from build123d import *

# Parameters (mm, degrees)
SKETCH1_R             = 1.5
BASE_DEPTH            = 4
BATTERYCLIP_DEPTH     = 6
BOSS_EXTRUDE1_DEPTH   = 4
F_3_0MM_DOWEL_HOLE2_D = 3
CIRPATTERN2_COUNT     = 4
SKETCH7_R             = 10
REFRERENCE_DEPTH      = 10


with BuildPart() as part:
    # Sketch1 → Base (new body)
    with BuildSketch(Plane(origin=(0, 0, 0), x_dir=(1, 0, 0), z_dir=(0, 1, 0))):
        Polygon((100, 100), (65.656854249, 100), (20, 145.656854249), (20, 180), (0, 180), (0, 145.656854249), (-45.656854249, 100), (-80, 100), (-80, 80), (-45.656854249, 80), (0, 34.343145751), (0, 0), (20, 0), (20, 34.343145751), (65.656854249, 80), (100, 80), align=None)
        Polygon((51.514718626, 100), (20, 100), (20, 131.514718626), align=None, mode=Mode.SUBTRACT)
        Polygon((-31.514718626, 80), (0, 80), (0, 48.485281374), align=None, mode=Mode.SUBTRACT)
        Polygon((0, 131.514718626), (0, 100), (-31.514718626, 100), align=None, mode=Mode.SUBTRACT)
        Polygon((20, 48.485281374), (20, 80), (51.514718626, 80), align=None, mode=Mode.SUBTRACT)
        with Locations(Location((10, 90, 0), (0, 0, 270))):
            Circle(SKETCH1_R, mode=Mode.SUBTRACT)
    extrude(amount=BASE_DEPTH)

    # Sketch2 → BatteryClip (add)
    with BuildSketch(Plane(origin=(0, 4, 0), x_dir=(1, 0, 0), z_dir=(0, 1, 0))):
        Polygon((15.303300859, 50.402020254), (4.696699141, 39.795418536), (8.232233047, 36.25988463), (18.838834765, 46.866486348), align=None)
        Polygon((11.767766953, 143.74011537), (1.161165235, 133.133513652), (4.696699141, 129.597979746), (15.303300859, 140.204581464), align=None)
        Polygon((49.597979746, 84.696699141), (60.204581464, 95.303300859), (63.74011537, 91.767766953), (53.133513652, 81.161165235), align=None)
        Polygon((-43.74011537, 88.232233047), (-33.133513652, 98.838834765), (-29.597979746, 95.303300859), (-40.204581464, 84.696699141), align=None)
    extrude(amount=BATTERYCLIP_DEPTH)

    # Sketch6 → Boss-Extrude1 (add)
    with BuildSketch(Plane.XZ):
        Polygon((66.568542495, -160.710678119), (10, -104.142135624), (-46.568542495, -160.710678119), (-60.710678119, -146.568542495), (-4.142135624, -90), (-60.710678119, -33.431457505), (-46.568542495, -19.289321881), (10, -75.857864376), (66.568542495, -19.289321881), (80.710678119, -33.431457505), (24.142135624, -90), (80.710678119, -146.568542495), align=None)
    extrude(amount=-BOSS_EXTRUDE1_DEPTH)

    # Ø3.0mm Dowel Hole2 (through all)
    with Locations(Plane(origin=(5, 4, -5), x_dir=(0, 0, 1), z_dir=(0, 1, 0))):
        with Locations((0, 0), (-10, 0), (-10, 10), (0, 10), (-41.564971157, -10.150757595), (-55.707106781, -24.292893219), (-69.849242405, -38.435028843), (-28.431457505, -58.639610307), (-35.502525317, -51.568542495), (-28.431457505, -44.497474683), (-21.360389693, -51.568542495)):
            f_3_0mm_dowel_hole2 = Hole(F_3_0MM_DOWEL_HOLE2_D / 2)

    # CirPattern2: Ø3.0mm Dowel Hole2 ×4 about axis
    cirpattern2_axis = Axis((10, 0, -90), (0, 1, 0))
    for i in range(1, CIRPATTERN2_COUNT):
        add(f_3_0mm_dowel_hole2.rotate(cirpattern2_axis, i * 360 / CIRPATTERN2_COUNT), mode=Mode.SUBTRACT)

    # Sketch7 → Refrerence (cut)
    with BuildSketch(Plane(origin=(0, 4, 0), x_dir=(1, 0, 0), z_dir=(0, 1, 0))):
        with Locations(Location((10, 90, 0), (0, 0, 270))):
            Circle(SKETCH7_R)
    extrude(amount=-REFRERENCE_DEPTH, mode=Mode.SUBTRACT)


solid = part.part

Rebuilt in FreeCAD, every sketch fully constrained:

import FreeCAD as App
import Part
import Sketcher
Q = App.Units.Quantity


def add_polygon(sketch, points):
    """Adds a closed chain of lines whose ends are joined by coincident constraints."""
    first, n = sketch.GeometryCount, len(points)
    for a, b in zip(points, points[1:] + points[:1]):
        sketch.addGeometry(Part.LineSegment(App.Vector(*a, 0), App.Vector(*b, 0)), False)
    for i in range(n):
        sketch.addConstraint(Sketcher.Constraint("Coincident", first + i, 2, first + (i + 1) % n, 1))

doc = App.newDocument("Part")
params = doc.addObject("Spreadsheet::Sheet", "Params")
for row, (alias, value) in enumerate([
    ("sketch1_diameter", "3 mm"),
    ("sketch1_width", "20 mm"),
    ("pad1_length", "4 mm"),
    ("sketch2_length", "15 mm"),
    ("sketch2_length2", "5 mm"),
    ("pad2_length", "6 mm"),
    ("sketch3_length", "80 mm"),
    ("sketch3_length2", "20 mm"),
    ("pad3_length", "4 mm"),
    ("sketch4_diameter", "3 mm"),
    ("hole_diameter", "3 mm"),
    ("sketch5_diameter", "20 mm"),
    ("pocket1_length", "10 mm"),
], start=1):
    params.set(f"A{row}", alias)
    params.set(f"B{row}", "=" + value)
    params.setAlias(f"B{row}", alias)

body = doc.addObject("PartDesign::Body", "Body")

# Sketch on XZ plane
sketch1 = body.newObject("Sketcher::SketchObject", "Sketch")
sketch1.AttachmentSupport = (doc.getObject("XZ_Plane"), [""])
sketch1.MapMode = "FlatFace"
add_polygon(sketch1, [(100, -100), (65.656854, -100), (20, -145.656854), (20, -180), (0, -180), (0, -145.656854), (-45.656854, -100), (-80, -100), (-80, -80), (-45.656854, -80), (0, -34.343146), (0, 0), (20, 0), (20, -34.343146), (65.656854, -80), (100, -80)])  # lines 0-15
add_polygon(sketch1, [(0, -48.485281), (-31.514719, -80), (0, -80)])  # lines 16-18
add_polygon(sketch1, [(51.514719, -80), (20, -48.485281), (20, -80)])  # lines 19-21
add_polygon(sketch1, [(-31.514719, -100), (0, -131.514719), (0, -100)])  # lines 22-24
sketch1.addGeometry(Part.Circle(App.Vector(10, -90, 0), App.Vector(0, 0, 1), 1.5), False)  # 25
add_polygon(sketch1, [(20, -131.514719), (51.514719, -100), (20, -100)])  # lines 26-28
sketch1.addConstraint(Sketcher.Constraint("Horizontal", 0))
sketch1.addConstraint(Sketcher.Constraint("Vertical", 2))
sketch1.addConstraint(Sketcher.Constraint("Horizontal", 3))
sketch1.addConstraint(Sketcher.Constraint("Vertical", 4))
sketch1.addConstraint(Sketcher.Constraint("Horizontal", 6))
sketch1.addConstraint(Sketcher.Constraint("Vertical", 7))
sketch1.addConstraint(Sketcher.Constraint("Horizontal", 8))
sketch1.addConstraint(Sketcher.Constraint("Vertical", 10))
sketch1.addConstraint(Sketcher.Constraint("Horizontal", 11))
sketch1.addConstraint(Sketcher.Constraint("Vertical", 12))
sketch1.addConstraint(Sketcher.Constraint("Horizontal", 14))
sketch1.addConstraint(Sketcher.Constraint("Vertical", 15))
sketch1.addConstraint(Sketcher.Constraint("Horizontal", 17))
sketch1.addConstraint(Sketcher.Constraint("Vertical", 18))
sketch1.addConstraint(Sketcher.Constraint("Vertical", 20))
sketch1.addConstraint(Sketcher.Constraint("Horizontal", 21))
sketch1.addConstraint(Sketcher.Constraint("Vertical", 23))
sketch1.addConstraint(Sketcher.Constraint("Horizontal", 24))
sketch1.addConstraint(Sketcher.Constraint("Horizontal", 27))
sketch1.addConstraint(Sketcher.Constraint("Vertical", 28))
sketch1.addConstraint(Sketcher.Constraint("Coincident", 10, 2, -1, 1))
sketch1.addConstraint(Sketcher.Constraint("PointOnObject", 3, 2, -2))
sketch1.addConstraint(Sketcher.Constraint("PointOnObject", 17, 2, -2))
sketch1.addConstraint(Sketcher.Constraint("PointOnObject", 22, 2, -2))
sketch1.addConstraint(Sketcher.Constraint("Perpendicular", 1, 5))
sketch1.addConstraint(Sketcher.Constraint("Perpendicular", 5, 9))
sketch1.addConstraint(Sketcher.Constraint("Perpendicular", 9, 13))
sketch1.addConstraint(Sketcher.Constraint("Perpendicular", 13, 16))
sketch1.addConstraint(Sketcher.Constraint("Perpendicular", 16, 19))
sketch1.addConstraint(Sketcher.Constraint("Parallel", 19, 22))
sketch1.addConstraint(Sketcher.Constraint("Perpendicular", 22, 26))
sketch1.addConstraint(Sketcher.Constraint("Horizontal", 1, 2, 4, 2))
sketch1.addConstraint(Sketcher.Constraint("Horizontal", 0, 2, 5, 2))
sketch1.addConstraint(Sketcher.Constraint("Horizontal", 9, 2, 12, 2))
sketch1.addConstraint(Sketcher.Constraint("Horizontal", 8, 2, 13, 2))
sketch1.addConstraint(Sketcher.Constraint("Horizontal", 14, 2, 16, 2))
sketch1.addConstraint(Sketcher.Constraint("Horizontal", 18, 2, 19, 2))
sketch1.addConstraint(Sketcher.Constraint("Horizontal", 17, 2, 20, 2))
sketch1.addConstraint(Sketcher.Constraint("Horizontal", 15, 2, 23, 2))
sketch1.addConstraint(Sketcher.Constraint("Horizontal", 24, 2, 26, 2))
sketch1.addConstraint(Sketcher.Constraint("Horizontal", 22, 2, 28, 2))
sketch1.addConstraint(Sketcher.Constraint("Vertical", 5, 2, 8, 2))
sketch1.addConstraint(Sketcher.Constraint("Vertical", 2, 2, 11, 2))
sketch1.addConstraint(Sketcher.Constraint("Vertical", 0, 2, 13, 2))
sketch1.addConstraint(Sketcher.Constraint("Vertical", 12, 2, 19, 2))
sketch1.addConstraint(Sketcher.Constraint("Vertical", 16, 2, 24, 2))
sketch1.addConstraint(Sketcher.Constraint("Vertical", 21, 2, 26, 2))
sketch1.addConstraint(Sketcher.Constraint("Equal", 0, 6))
sketch1.addConstraint(Sketcher.Constraint("Equal", 14, 2))
sketch1.addConstraint(Sketcher.Constraint("Equal", 11, 7))
sketch1.addConstraint(Sketcher.Constraint("Equal", 4, 10))
sketch1.addConstraint(Sketcher.Constraint("Diameter", 25, 3.0))
sketch1.addConstraint(Sketcher.Constraint("DistanceX", 3, 2, 3, 1, 20.0))
sketch1.addConstraint(Sketcher.Constraint("DistanceX", -1, 1, 25, 3, 10.0))
sketch1.addConstraint(Sketcher.Constraint("DistanceY", 25, 3, -1, 1, 90.0))
sketch1.addConstraint(Sketcher.Constraint("DistanceY", 0, 2, -1, 1, 100.0))
sketch1.addConstraint(Sketcher.Constraint("DistanceX", 17, 1, 17, 2, 31.514719))
sketch1.addConstraint(Sketcher.Constraint("DistanceX", 0, 2, 0, 1, 34.343146))
sketch1.setExpression("Constraints[79]", "Params.sketch1_diameter")
sketch1.setExpression("Constraints[80]", "Params.sketch1_width")
pad1 = body.newObject("PartDesign::Pad", "Pad")
pad1.Profile = sketch1
pad1.setExpression("Length", "Params.pad1_length")
pad1.Reversed = True

# Sketch on XZ plane
sketch2 = body.newObject("Sketcher::SketchObject", "Sketch001")
sketch2.AttachmentSupport = (doc.getObject("XZ_Plane"), [""])
sketch2.MapMode = "FlatFace"
sketch2.AttachmentOffset = App.Placement(App.Vector(0, 0, -4), App.Rotation())
add_polygon(sketch2, [(15.303301, -50.40202), (4.696699, -39.795419), (8.232233, -36.259885), (18.838835, -46.866486)])  # lines 0-3
add_polygon(sketch2, [(11.767767, -143.740115), (1.161165, -133.133514), (4.696699, -129.59798), (15.303301, -140.204581)])  # lines 4-7
add_polygon(sketch2, [(60.204581, -95.303301), (49.59798, -84.696699), (53.133514, -81.161165), (63.740115, -91.767767)])  # lines 8-11
add_polygon(sketch2, [(-33.133514, -98.838835), (-43.740115, -88.232233), (-40.204581, -84.696699), (-29.59798, -95.303301)])  # lines 12-15
sketch2.addConstraint(Sketcher.Constraint("Perpendicular", 0, 1))
sketch2.addConstraint(Sketcher.Constraint("Perpendicular", 1, 2))
sketch2.addConstraint(Sketcher.Constraint("Perpendicular", 2, 3))
sketch2.addConstraint(Sketcher.Constraint("Perpendicular", 3, 4))
sketch2.addConstraint(Sketcher.Constraint("Perpendicular", 4, 5))
sketch2.addConstraint(Sketcher.Constraint("Perpendicular", 5, 6))
sketch2.addConstraint(Sketcher.Constraint("Perpendicular", 6, 7))
sketch2.addConstraint(Sketcher.Constraint("Perpendicular", 7, 8))
sketch2.addConstraint(Sketcher.Constraint("Perpendicular", 8, 9))
sketch2.addConstraint(Sketcher.Constraint("Perpendicular", 9, 10))
sketch2.addConstraint(Sketcher.Constraint("Perpendicular", 10, 11))
sketch2.addConstraint(Sketcher.Constraint("Perpendicular", 11, 12))
sketch2.addConstraint(Sketcher.Constraint("Perpendicular", 12, 13))
sketch2.addConstraint(Sketcher.Constraint("Perpendicular", 13, 14))
sketch2.addConstraint(Sketcher.Constraint("Perpendicular", 14, 15))
sketch2.addConstraint(Sketcher.Constraint("Horizontal", 8, 2, 13, 2))
sketch2.addConstraint(Sketcher.Constraint("Horizontal", 11, 2, 14, 2))
sketch2.addConstraint(Sketcher.Constraint("Vertical", 0, 2, 5, 2))
sketch2.addConstraint(Sketcher.Constraint("Vertical", 3, 2, 6, 2))
sketch2.addConstraint(Sketcher.Constraint("Equal", 3, 5))
sketch2.addConstraint(Sketcher.Constraint("Equal", 6, 8))
sketch2.addConstraint(Sketcher.Constraint("Equal", 7, 9))
sketch2.addConstraint(Sketcher.Constraint("Equal", 11, 13))
sketch2.addConstraint(Sketcher.Constraint("Angle", 0, Q("135 deg")))
sketch2.addConstraint(Sketcher.Constraint("Distance", 0, 15.0))
sketch2.addConstraint(Sketcher.Constraint("Distance", 1, 5.0))
sketch2.addConstraint(Sketcher.Constraint("DistanceX", -1, 1, 0, 2, 4.696699))
sketch2.addConstraint(Sketcher.Constraint("DistanceY", 8, 2, -1, 1, 84.696699))
sketch2.addConstraint(Sketcher.Constraint("DistanceY", 0, 2, -1, 1, 39.795419))
sketch2.addConstraint(Sketcher.Constraint("DistanceY", 5, 2, -1, 1, 129.59798))
sketch2.addConstraint(Sketcher.Constraint("DistanceX", -1, 1, 8, 2, 49.59798))
sketch2.addConstraint(Sketcher.Constraint("DistanceX", 13, 2, -1, 1, 40.204581))
sketch2.setExpression("Constraints[40]", "Params.sketch2_length")
sketch2.setExpression("Constraints[41]", "Params.sketch2_length2")
pad2 = body.newObject("PartDesign::Pad", "Pad001")
pad2.Profile = sketch2
pad2.setExpression("Length", "Params.pad2_length")
pad2.Reversed = True

# Sketch on XZ plane
sketch3 = body.newObject("Sketcher::SketchObject", "Sketch002")
sketch3.AttachmentSupport = (doc.getObject("XZ_Plane"), [""])
sketch3.MapMode = "FlatFace"
add_polygon(sketch3, [(10, -104.142136), (66.568542, -160.710678), (80.710678, -146.568542), (24.142136, -90), (80.710678, -33.431458), (66.568542, -19.289322), (10, -75.857864), (-46.568542, -19.289322), (-60.710678, -33.431458), (-4.142136, -90), (-60.710678, -146.568542), (-46.568542, -160.710678)])  # lines 0-11
sketch3.addConstraint(Sketcher.Constraint("Perpendicular", 0, 1))
sketch3.addConstraint(Sketcher.Constraint("Perpendicular", 1, 2))
sketch3.addConstraint(Sketcher.Constraint("Perpendicular", 2, 3))
sketch3.addConstraint(Sketcher.Constraint("Perpendicular", 3, 4))
sketch3.addConstraint(Sketcher.Constraint("Perpendicular", 4, 5))
sketch3.addConstraint(Sketcher.Constraint("Perpendicular", 5, 6))
sketch3.addConstraint(Sketcher.Constraint("Perpendicular", 6, 7))
sketch3.addConstraint(Sketcher.Constraint("Perpendicular", 7, 8))
sketch3.addConstraint(Sketcher.Constraint("Perpendicular", 8, 9))
sketch3.addConstraint(Sketcher.Constraint("Perpendicular", 9, 10))
sketch3.addConstraint(Sketcher.Constraint("Perpendicular", 10, 11))
sketch3.addConstraint(Sketcher.Constraint("Horizontal", 4, 2, 6, 2))
sketch3.addConstraint(Sketcher.Constraint("Horizontal", 3, 2, 7, 2))
sketch3.addConstraint(Sketcher.Constraint("Horizontal", 2, 2, 8, 2))
sketch3.addConstraint(Sketcher.Constraint("Horizontal", 1, 2, 9, 2))
sketch3.addConstraint(Sketcher.Constraint("Horizontal", 0, 2, 10, 2))
sketch3.addConstraint(Sketcher.Constraint("Vertical", 1, 2, 3, 2))
sketch3.addConstraint(Sketcher.Constraint("Vertical", 0, 2, 4, 2))
sketch3.addConstraint(Sketcher.Constraint("Vertical", 7, 2, 9, 2))
sketch3.addConstraint(Sketcher.Constraint("Equal", 0, 2))
sketch3.addConstraint(Sketcher.Constraint("Distance", 0, 80.0))
sketch3.addConstraint(Sketcher.Constraint("Distance", 1, 20.0))
sketch3.addConstraint(Sketcher.Constraint("DistanceY", 2, 2, -1, 1, 90.0))
sketch3.addConstraint(Sketcher.Constraint("DistanceX", -1, 1, 5, 2, 10.0))
sketch3.setExpression("Constraints[32]", "Params.sketch3_length")
sketch3.setExpression("Constraints[33]", "Params.sketch3_length2")
pad3 = body.newObject("PartDesign::Pad", "Pad002")
pad3.Profile = sketch3
pad3.setExpression("Length", "Params.pad3_length")
pad3.Reversed = True

# Sketch on XZ plane
sketch4 = body.newObject("Sketcher::SketchObject", "Sketch003")
sketch4.AttachmentSupport = (doc.getObject("XZ_Plane"), [""])
sketch4.MapMode = "FlatFace"
sketch4.AttachmentOffset = App.Placement(App.Vector(0, 0, -4), App.Rotation())
sketch4.addGeometry(Part.Circle(App.Vector(5, -5, 0), App.Vector(0, 0, 1), 1.5), False)
sketch4.addGeometry(Part.Circle(App.Vector(5, -15, 0), App.Vector(0, 0, 1), 1.5), False)
sketch4.addGeometry(Part.Circle(App.Vector(15, -15, 0), App.Vector(0, 0, 1), 1.5), False)
sketch4.addGeometry(Part.Circle(App.Vector(15, -5, 0), App.Vector(0, 0, 1), 1.5), False)
sketch4.addGeometry(Part.Circle(App.Vector(-5.150758, -46.564971, 0), App.Vector(0, 0, 1), 1.5), False)
sketch4.addGeometry(Part.Circle(App.Vector(-19.292893, -60.707107, 0), App.Vector(0, 0, 1), 1.5), False)
sketch4.addGeometry(Part.Circle(App.Vector(-33.435029, -74.849242, 0), App.Vector(0, 0, 1), 1.5), False)
sketch4.addGeometry(Part.Circle(App.Vector(-53.63961, -33.431458, 0), App.Vector(0, 0, 1), 1.5), False)
sketch4.addGeometry(Part.Circle(App.Vector(-46.568542, -40.502525, 0), App.Vector(0, 0, 1), 1.5), False)
sketch4.addGeometry(Part.Circle(App.Vector(-39.497475, -33.431458, 0), App.Vector(0, 0, 1), 1.5), False)
sketch4.addGeometry(Part.Circle(App.Vector(-46.568542, -26.36039, 0), App.Vector(0, 0, 1), 1.5), False)
sketch4.addConstraint(Sketcher.Constraint("Equal", 0, 1))
sketch4.addConstraint(Sketcher.Constraint("Equal", 1, 2))
sketch4.addConstraint(Sketcher.Constraint("Equal", 2, 3))
sketch4.addConstraint(Sketcher.Constraint("Equal", 3, 4))
sketch4.addConstraint(Sketcher.Constraint("Equal", 4, 5))
sketch4.addConstraint(Sketcher.Constraint("Equal", 5, 6))
sketch4.addConstraint(Sketcher.Constraint("Equal", 6, 7))
sketch4.addConstraint(Sketcher.Constraint("Equal", 7, 8))
sketch4.addConstraint(Sketcher.Constraint("Equal", 8, 9))
sketch4.addConstraint(Sketcher.Constraint("Equal", 9, 10))
sketch4.addConstraint(Sketcher.Constraint("Horizontal", 1, 3, 2, 3))
sketch4.addConstraint(Sketcher.Constraint("Horizontal", 0, 3, 3, 3))
sketch4.addConstraint(Sketcher.Constraint("Horizontal", 7, 3, 9, 3))
sketch4.addConstraint(Sketcher.Constraint("Vertical", 0, 3, 1, 3))
sketch4.addConstraint(Sketcher.Constraint("Vertical", 2, 3, 3, 3))
sketch4.addConstraint(Sketcher.Constraint("Vertical", 8, 3, 10, 3))
sketch4.addConstraint(Sketcher.Constraint("Diameter", 0, 3.0))
sketch4.addConstraint(Sketcher.Constraint("DistanceX", -1, 1, 0, 3, 5.0))
sketch4.addConstraint(Sketcher.Constraint("DistanceY", 0, 3, -1, 1, 5.0))
sketch4.addConstraint(Sketcher.Constraint("DistanceY", 1, 3, -1, 1, 15.0))
sketch4.addConstraint(Sketcher.Constraint("DistanceX", -1, 1, 2, 3, 15.0))
sketch4.addConstraint(Sketcher.Constraint("DistanceY", 4, 3, -1, 1, 46.564971))
sketch4.addConstraint(Sketcher.Constraint("DistanceX", 6, 3, -1, 1, 33.435029))
sketch4.addConstraint(Sketcher.Constraint("DistanceX", 7, 3, -1, 1, 53.63961))
sketch4.addConstraint(Sketcher.Constraint("DistanceY", 10, 3, -1, 1, 26.36039))
sketch4.addConstraint(Sketcher.Constraint("DistanceX", 6, 3, 4, 3, 28.284271))
sketch4.addConstraint(Sketcher.Constraint("DistanceY", 6, 3, 4, 3, 28.284271))
sketch4.addConstraint(Sketcher.Constraint("DistanceY", 5, 3, 7, 3, 27.275649))
sketch4.addConstraint(Sketcher.Constraint("DistanceX", 8, 3, 5, 3, 27.275649))
sketch4.addConstraint(Sketcher.Constraint("DistanceY", 5, 3, 8, 3, 20.204581))
sketch4.addConstraint(Sketcher.Constraint("DistanceX", 9, 3, 5, 3, 20.204581))
sketch4.addConstraint(Sketcher.Constraint("DistanceX", 5, 3, -1, 1, 19.292893))
sketch4.addConstraint(Sketcher.Constraint("DistanceY", 5, 3, -1, 1, 60.707107))
sketch4.setExpression("Constraints[16]", "Params.sketch4_diameter")
doc.recompute()
hole = body.newObject("PartDesign::Hole", "Hole")
hole.Profile = sketch4
hole.ThreadType = "None"
hole.setExpression("Diameter", "Params.hole_diameter")
hole.DepthType = "ThroughAll"
hole.Reversed = True
doc.recompute()

datumline = body.newObject("PartDesign::Line", "DatumLine")
datumline.Placement = App.Placement(App.Vector(10, 0, -90), App.Rotation(App.Vector(0, 0, 1), App.Vector(0, 1, 0)))
polarpattern = body.newObject("PartDesign::PolarPattern", "PolarPattern")
polarpattern.Originals = [hole]
polarpattern.Axis = (datumline, [""])
polarpattern.Angle = 360
polarpattern.Occurrences = 4
body.Tip = polarpattern

# Sketch on XZ plane
sketch5 = body.newObject("Sketcher::SketchObject", "Sketch004")
sketch5.AttachmentSupport = (doc.getObject("XZ_Plane"), [""])
sketch5.MapMode = "FlatFace"
sketch5.AttachmentOffset = App.Placement(App.Vector(0, 0, -4), App.Rotation())
sketch5.addGeometry(Part.Circle(App.Vector(10, -90, 0), App.Vector(0, 0, 1), 10), False)
sketch5.addConstraint(Sketcher.Constraint("Diameter", 0, 20.0))
sketch5.addConstraint(Sketcher.Constraint("DistanceX", -1, 1, 0, 3, 10.0))
sketch5.addConstraint(Sketcher.Constraint("DistanceY", 0, 3, -1, 1, 90.0))
sketch5.setExpression("Constraints[0]", "Params.sketch5_diameter")
pocket1 = body.newObject("PartDesign::Pocket", "Pocket")
pocket1.Profile = sketch5
pocket1.setExpression("Length", "Params.pocket1_length")
pocket1.Reversed = True

doc.recompute()
